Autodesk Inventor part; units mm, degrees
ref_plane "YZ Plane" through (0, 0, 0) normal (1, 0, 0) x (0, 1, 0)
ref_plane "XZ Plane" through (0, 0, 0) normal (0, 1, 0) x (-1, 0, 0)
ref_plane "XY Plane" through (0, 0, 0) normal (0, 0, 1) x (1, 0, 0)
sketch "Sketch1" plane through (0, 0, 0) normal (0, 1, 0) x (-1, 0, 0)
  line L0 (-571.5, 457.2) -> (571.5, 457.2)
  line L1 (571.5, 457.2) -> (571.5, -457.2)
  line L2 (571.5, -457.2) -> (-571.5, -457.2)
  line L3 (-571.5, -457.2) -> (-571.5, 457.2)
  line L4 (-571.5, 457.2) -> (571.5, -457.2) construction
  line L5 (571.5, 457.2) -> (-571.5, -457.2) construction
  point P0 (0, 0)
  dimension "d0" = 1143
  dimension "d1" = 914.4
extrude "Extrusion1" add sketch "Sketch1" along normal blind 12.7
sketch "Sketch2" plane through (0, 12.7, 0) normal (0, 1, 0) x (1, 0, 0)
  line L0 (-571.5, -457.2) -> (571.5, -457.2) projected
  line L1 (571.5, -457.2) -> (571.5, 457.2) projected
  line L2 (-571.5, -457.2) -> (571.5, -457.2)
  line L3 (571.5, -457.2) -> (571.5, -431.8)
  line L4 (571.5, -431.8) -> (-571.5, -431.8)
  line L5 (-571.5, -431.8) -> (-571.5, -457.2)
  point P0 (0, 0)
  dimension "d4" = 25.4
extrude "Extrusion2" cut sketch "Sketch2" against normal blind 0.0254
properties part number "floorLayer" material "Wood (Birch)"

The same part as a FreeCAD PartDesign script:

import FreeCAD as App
import Part
import Sketcher
from FreeCAD import Vector
Q = App.Units.Quantity

doc = App.newDocument("Part")
params = doc.addObject("Spreadsheet::Sheet", "Params")
for row, (alias, value) in enumerate([
    ("sketch1_width", "45 in"),
    ("sketch1_height", "36 in"),
    ("pad1_length", "0.5 in"),
    ("sketch2_height", "1 in"),
    ("sketch2_width", "45 in"),
    ("pocket1_length", "0.001 in"),
], start=1):
    params.set(f"A{row}", alias)
    params.set(f"B{row}", "=" + value)
    params.setAlias(f"B{row}", alias)

body = doc.addObject("PartDesign::Body", "Body")

sketch1 = body.newObject("Sketcher::SketchObject", "Sketch")
sketch1.AttachmentSupport = (doc.getObject("XZ_Plane"), [""])
sketch1.MapMode = "FlatFace"
sketch1.addGeometry([
    Part.LineSegment(Vector(-571.5, 457.2, 0), Vector(571.5, 457.2, 0)),
    Part.LineSegment(Vector(571.5, 457.2, 0), Vector(571.5, -457.2, 0)),
    Part.LineSegment(Vector(571.5, -457.2, 0), Vector(-571.5, -457.2, 0)),
    Part.LineSegment(Vector(-571.5, -457.2, 0), Vector(-571.5, 457.2, 0)),
], False)
sketch1.addConstraint([
    Sketcher.Constraint("Coincident", 0, 2, 1, 1),
    Sketcher.Constraint("Coincident", 1, 2, 2, 1),
    Sketcher.Constraint("Coincident", 2, 2, 3, 1),
    Sketcher.Constraint("Coincident", 3, 2, 0, 1),
    Sketcher.Constraint("Horizontal", 0),
    Sketcher.Constraint("Vertical", 1),
    Sketcher.Constraint("Horizontal", 2),
    Sketcher.Constraint("Vertical", 3),
    Sketcher.Constraint("Symmetric", 0, 2, 2, 2, -1, 1),
    Sketcher.Constraint("DistanceX", 0, 1, 0, 2, Q("45 in")),
    Sketcher.Constraint("DistanceY", 1, 2, 1, 1, Q("36 in")),
])
sketch1.setExpression("Constraints[9]", "Params.sketch1_width")
sketch1.setExpression("Constraints[10]", "Params.sketch1_height")
pad1 = body.newObject("PartDesign::Pad", "Pad")
pad1.Profile = sketch1
pad1.setExpression("Length", "Params.pad1_length")
pad1.Reversed = True

sketch2 = body.newObject("Sketcher::SketchObject", "Sketch001")
sketch2.AttachmentSupport = (doc.getObject("XZ_Plane"), [""])
sketch2.MapMode = "FlatFace"
sketch2.AttachmentOffset = App.Placement(Vector(0, 0, -0.5 * 25.4), App.Rotation())
sketch2.addGeometry([
    Part.LineSegment(Vector(-571.5, 431.8, 0), Vector(-571.5, 457.2, 0)),
    Part.LineSegment(Vector(-571.5, 457.2, 0), Vector(571.5, 457.2, 0)),
    Part.LineSegment(Vector(571.5, 457.2, 0), Vector(571.5, 431.8, 0)),
    Part.LineSegment(Vector(571.5, 431.8, 0), Vector(-571.5, 431.8, 0)),
], False)
sketch2.addConstraint([
    Sketcher.Constraint("Coincident", 0, 2, 1, 1),
    Sketcher.Constraint("Coincident", 1, 2, 2, 1),
    Sketcher.Constraint("Coincident", 2, 2, 3, 1),
    Sketcher.Constraint("Coincident", 3, 2, 0, 1),
    Sketcher.Constraint("Vertical", 0),
    Sketcher.Constraint("Horizontal", 1),
    Sketcher.Constraint("Vertical", 2),
    Sketcher.Constraint("Horizontal", 3),
    Sketcher.Constraint("DistanceY", 0, 1, 0, 2, Q("1 in")),
    Sketcher.Constraint("DistanceX", 1, 1, 1, 2, Q("45 in")),
    Sketcher.Constraint("DistanceY", -1, 1, 0, 2, Q("18 in")),
    Sketcher.Constraint("DistanceX", 0, 2, -1, 1, Q("22.5 in")),
])
sketch2.setExpression("Constraints[8]", "Params.sketch2_height")
sketch2.setExpression("Constraints[9]", "Params.sketch2_width")
pocket1 = body.newObject("PartDesign::Pocket", "Pocket")
pocket1.Profile = sketch2
pocket1.setExpression("Length", "Params.pocket1_length")
pocket1.Reversed = True

doc.recompute()
